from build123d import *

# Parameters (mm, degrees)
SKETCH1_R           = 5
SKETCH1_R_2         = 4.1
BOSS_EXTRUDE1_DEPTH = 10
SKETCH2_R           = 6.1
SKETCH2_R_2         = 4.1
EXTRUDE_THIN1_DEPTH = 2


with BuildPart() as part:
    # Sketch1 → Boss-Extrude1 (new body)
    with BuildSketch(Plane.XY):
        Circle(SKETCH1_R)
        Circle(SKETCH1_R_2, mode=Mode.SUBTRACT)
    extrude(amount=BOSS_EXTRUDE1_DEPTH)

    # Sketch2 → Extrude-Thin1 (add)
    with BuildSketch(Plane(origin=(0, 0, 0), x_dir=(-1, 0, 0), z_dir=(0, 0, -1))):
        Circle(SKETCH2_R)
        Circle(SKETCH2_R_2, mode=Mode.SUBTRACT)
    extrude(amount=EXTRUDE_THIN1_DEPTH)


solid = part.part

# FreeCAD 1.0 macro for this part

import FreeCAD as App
import Part
import Sketcher
from FreeCAD import Vector

doc = App.newDocument("Part")
params = doc.addObject("Spreadsheet::Sheet", "Params")
for row, (alias, value) in enumerate([
    ("sketch1_diameter", "10 mm"),
    ("sketch1_diameter2", "8.2 mm"),
    ("pad1_length", "10 mm"),
    ("sketch2_diameter", "12.2 mm"),
    ("sketch2_diameter2", "8.2 mm"),
    ("pad2_length", "2 mm"),
], start=1):
    params.set(f"A{row}", alias)
    params.set(f"B{row}", "=" + value)
    params.setAlias(f"B{row}", alias)

body = doc.addObject("PartDesign::Body", "Body")

# Sketch on XY plane
sketch1 = doc.addObject("Sketcher::SketchObject", "Sketch")
body.addObject(sketch1)
sketch1.AttachmentSupport = (doc.XY_Plane, [""])
sketch1.MapMode = "FlatFace"
sketch1.addGeometry([
    Part.Circle(Vector(0, 0, 0), Vector(0, 0, 1), 5),
    Part.Circle(Vector(0, 0, 0), Vector(0, 0, 1), 4.1),
], False)
sketch1.addConstraint([
    Sketcher.Constraint("Coincident", 0, 3, -1, 1),
    Sketcher.Constraint("Coincident", 1, 3, -1, 1),
    Sketcher.Constraint("Diameter", 0, 10.0),
    Sketcher.Constraint("Diameter", 1, 8.2),
])
sketch1.setExpression("Constraints[2]", "Params.sketch1_diameter")
sketch1.setExpression("Constraints[3]", "Params.sketch1_diameter2")
pad1 = doc.addObject("PartDesign::Pad", "Pad")
body.addObject(pad1)
pad1.Profile = sketch1
pad1.setExpression("Length", "Params.pad1_length")

# Sketch on XY plane
sketch2 = doc.addObject("Sketcher::SketchObject", "Sketch001")
body.addObject(sketch2)
sketch2.AttachmentSupport = (doc.XY_Plane, [""])
sketch2.MapMode = "FlatFace"
sketch2.addGeometry([
    Part.Circle(Vector(0, 0, 0), Vector(0, 0, 1), 6.1),
    Part.Circle(Vector(0, 0, 0), Vector(0, 0, 1), 4.1),
], False)
sketch2.addConstraint([
    Sketcher.Constraint("Coincident", 0, 3, -1, 1),
    Sketcher.Constraint("Coincident", 1, 3, -1, 1),
    Sketcher.Constraint("Diameter", 0, 12.2),
    Sketcher.Constraint("Diameter", 1, 8.2),
])
sketch2.setExpression("Constraints[2]", "Params.sketch2_diameter")
sketch2.setExpression("Constraints[3]", "Params.sketch2_diameter2")
pad2 = doc.addObject("PartDesign::Pad", "Pad001")
body.addObject(pad2)
pad2.Profile = sketch2
pad2.setExpression("Length", "Params.pad2_length")
pad2.Reversed = True

doc.recompute()
